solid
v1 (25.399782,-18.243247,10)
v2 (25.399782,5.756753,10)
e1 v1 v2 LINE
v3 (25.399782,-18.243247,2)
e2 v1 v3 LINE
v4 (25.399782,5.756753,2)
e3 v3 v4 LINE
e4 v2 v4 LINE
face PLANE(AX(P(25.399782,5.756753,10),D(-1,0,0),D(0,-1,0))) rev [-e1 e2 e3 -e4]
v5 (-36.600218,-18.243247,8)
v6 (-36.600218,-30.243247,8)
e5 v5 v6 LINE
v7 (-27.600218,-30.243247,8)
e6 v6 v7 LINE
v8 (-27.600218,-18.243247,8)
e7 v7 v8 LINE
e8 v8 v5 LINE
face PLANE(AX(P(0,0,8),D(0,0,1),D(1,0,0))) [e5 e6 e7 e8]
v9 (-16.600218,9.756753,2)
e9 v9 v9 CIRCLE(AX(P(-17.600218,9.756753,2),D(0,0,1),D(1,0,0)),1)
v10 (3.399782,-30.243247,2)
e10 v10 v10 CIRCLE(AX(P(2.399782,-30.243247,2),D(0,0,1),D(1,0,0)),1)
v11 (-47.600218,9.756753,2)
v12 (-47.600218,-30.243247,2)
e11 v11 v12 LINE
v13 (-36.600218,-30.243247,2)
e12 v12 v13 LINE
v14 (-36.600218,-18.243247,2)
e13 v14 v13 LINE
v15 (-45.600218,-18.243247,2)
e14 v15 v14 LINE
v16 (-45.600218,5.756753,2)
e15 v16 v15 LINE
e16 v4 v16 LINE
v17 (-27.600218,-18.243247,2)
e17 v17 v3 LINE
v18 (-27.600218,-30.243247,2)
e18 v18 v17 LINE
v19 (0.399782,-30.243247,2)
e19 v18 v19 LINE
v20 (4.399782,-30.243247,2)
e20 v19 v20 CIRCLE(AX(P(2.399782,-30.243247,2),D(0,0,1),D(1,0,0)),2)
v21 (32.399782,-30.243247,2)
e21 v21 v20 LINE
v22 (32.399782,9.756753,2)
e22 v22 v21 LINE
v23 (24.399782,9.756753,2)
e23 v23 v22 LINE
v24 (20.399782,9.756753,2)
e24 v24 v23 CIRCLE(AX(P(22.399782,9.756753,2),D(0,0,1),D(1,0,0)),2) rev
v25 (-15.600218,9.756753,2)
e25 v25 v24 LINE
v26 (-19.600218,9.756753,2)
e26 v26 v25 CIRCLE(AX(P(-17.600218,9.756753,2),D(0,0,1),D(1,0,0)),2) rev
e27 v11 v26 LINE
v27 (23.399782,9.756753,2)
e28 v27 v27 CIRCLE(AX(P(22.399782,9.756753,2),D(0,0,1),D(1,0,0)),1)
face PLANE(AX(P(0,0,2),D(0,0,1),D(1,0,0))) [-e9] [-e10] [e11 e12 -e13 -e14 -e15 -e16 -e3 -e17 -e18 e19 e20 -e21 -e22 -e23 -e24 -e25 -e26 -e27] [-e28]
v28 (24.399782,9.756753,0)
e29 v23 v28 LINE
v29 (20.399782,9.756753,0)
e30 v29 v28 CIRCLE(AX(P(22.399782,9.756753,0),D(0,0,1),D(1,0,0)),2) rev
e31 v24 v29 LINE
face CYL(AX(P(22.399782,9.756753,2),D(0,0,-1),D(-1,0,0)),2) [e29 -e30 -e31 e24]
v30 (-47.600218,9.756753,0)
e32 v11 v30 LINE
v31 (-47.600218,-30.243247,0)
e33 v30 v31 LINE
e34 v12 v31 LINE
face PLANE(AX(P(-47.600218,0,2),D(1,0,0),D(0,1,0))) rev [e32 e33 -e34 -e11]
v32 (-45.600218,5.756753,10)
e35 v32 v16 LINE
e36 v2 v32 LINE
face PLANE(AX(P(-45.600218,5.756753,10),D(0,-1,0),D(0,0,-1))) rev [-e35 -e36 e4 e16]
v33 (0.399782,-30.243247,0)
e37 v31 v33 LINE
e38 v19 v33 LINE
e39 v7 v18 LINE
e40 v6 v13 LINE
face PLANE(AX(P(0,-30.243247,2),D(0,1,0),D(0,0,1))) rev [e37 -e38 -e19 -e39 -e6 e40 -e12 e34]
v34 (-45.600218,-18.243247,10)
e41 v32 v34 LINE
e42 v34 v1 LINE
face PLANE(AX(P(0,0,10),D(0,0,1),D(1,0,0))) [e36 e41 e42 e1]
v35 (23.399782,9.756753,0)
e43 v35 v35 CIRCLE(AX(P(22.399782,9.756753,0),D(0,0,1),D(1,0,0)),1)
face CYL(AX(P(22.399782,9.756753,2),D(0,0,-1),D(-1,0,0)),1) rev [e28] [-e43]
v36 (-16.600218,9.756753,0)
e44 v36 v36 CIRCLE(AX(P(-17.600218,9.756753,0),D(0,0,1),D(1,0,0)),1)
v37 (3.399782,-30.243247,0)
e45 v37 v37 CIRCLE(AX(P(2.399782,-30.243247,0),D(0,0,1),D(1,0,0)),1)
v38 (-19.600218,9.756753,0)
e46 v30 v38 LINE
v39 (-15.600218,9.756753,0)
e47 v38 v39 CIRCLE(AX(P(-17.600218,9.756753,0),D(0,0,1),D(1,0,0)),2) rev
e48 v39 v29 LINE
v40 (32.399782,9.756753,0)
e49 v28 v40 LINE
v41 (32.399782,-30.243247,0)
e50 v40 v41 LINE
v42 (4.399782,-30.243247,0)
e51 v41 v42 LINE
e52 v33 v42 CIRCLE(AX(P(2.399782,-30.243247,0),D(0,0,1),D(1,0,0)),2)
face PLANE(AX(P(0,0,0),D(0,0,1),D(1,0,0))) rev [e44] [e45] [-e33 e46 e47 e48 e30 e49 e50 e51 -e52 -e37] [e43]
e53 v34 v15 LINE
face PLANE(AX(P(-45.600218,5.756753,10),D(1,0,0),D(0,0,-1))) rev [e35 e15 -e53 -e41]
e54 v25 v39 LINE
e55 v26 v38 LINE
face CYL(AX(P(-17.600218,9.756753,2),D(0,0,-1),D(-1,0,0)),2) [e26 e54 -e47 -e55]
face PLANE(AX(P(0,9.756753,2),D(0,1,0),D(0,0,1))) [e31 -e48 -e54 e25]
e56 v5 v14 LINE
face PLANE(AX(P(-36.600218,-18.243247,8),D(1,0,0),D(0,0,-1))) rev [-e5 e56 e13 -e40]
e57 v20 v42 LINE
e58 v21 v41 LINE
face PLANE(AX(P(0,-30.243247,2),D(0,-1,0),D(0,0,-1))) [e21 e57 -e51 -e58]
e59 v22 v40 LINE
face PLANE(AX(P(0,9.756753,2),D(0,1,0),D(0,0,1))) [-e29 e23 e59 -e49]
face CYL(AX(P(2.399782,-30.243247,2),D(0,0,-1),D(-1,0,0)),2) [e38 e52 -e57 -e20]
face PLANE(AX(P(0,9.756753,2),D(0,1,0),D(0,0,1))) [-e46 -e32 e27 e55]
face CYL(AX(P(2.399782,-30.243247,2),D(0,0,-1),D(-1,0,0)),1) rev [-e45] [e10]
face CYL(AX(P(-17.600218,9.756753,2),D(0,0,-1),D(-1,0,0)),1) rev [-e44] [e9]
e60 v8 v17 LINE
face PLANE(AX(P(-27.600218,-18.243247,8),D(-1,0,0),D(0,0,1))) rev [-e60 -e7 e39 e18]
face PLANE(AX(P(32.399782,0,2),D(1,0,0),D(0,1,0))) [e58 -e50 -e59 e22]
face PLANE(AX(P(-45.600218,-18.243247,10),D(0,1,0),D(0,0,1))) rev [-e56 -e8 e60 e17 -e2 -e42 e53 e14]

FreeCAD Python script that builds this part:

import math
import FreeCAD as App
import Part
import Sketcher

V = App.Vector


def add_polygon(sketch, points):
    """Adds a closed chain of lines whose ends are joined by coincident constraints."""
    first, n = sketch.GeometryCount, len(points)
    for a, b in zip(points, points[1:] + points[:1]):
        sketch.addGeometry(Part.LineSegment(App.Vector(*a, 0), App.Vector(*b, 0)), False)
    for i in range(n):
        sketch.addConstraint(Sketcher.Constraint("Coincident", first + i, 2, first + (i + 1) % n, 1))

doc = App.newDocument("Part")
params = doc.addObject("Spreadsheet::Sheet", "Params")
for row, (alias, value) in enumerate([
    ("sketch1_diameter", "2 mm"),
    ("sketch1_radius", "2 mm"),
    ("sketch1_width", "48 mm"),
    ("sketch1_width2", "28 mm"),
    ("sketch1_width3", "8 mm"),
    ("pad1_length", "2 mm"),
    ("sketch2_width", "71 mm"),
    ("sketch2_height", "24 mm"),
    ("pad2_length", "8 mm"),
    ("sketch3_width", "9 mm"),
    ("sketch3_height", "12 mm"),
    ("pad3_length", "6 mm"),
], start=1):
    params.set(f"A{row}", alias)
    params.set(f"B{row}", "=" + value)
    params.setAlias(f"B{row}", alias)

body = doc.addObject("PartDesign::Body", "Body")

# Sketch on XY plane
sketch1 = body.newObject("Sketcher::SketchObject", "Sketch")
sketch1.AttachmentSupport = (doc.getObject("XY_Plane"), [""])
sketch1.MapMode = "FlatFace"
sketch1.addGeometry([
    Part.LineSegment(V(-47.600218, -30.243247, 0), V(0.399782, -30.243247, 0)),  # 0
    Part.ArcOfCircle(Part.Circle(V(2.399782, -30.243247, 0), V(0, 0, 1), 2), math.radians(180), math.radians(360)),  # 1
    Part.LineSegment(V(4.399782, -30.243247, 0), V(32.399782, -30.243247, 0)),  # 2
    Part.LineSegment(V(32.399782, -30.243247, 0), V(32.399782, 9.756753, 0)),  # 3
    Part.LineSegment(V(32.399782, 9.756753, 0), V(24.399782, 9.756753, 0)),  # 4
    Part.ArcOfCircle(Part.Circle(V(22.399782, 9.756753, 0), V(0, 0, 1), 2), math.radians(0), math.radians(180)),  # 5
    Part.LineSegment(V(20.399782, 9.756753, 0), V(-15.600218, 9.756753, 0)),  # 6
    Part.ArcOfCircle(Part.Circle(V(-17.600218, 9.756753, 0), V(0, 0, 1), 2), math.radians(0), math.radians(180)),  # 7
    Part.LineSegment(V(-19.600218, 9.756753, 0), V(-47.600218, 9.756753, 0)),  # 8
    Part.LineSegment(V(-47.600218, 9.756753, 0), V(-47.600218, -30.243247, 0)),  # 9
    Part.Circle(V(2.399782, -30.243247, 0), V(0, 0, 1), 1),  # 10
    Part.Circle(V(-17.600218, 9.756753, 0), V(0, 0, 1), 1),  # 11
    Part.Circle(V(22.399782, 9.756753, 0), V(0, 0, 1), 1),  # 12
], False)
sketch1.addConstraint([
    Sketcher.Constraint("Coincident", 0, 2, 1, 1),
    Sketcher.Constraint("Coincident", 1, 2, 2, 1),
    Sketcher.Constraint("Coincident", 2, 2, 3, 1),
    Sketcher.Constraint("Coincident", 3, 2, 4, 1),
    Sketcher.Constraint("Coincident", 4, 2, 5, 1),
    Sketcher.Constraint("Coincident", 5, 2, 6, 1),
    Sketcher.Constraint("Coincident", 6, 2, 7, 1),
    Sketcher.Constraint("Coincident", 7, 2, 8, 1),
    Sketcher.Constraint("Coincident", 8, 2, 9, 1),
    Sketcher.Constraint("Coincident", 9, 2, 0, 1),
    Sketcher.Constraint("Horizontal", 0),
    Sketcher.Constraint("Horizontal", 2),
    Sketcher.Constraint("Vertical", 3),
    Sketcher.Constraint("Horizontal", 4),
    Sketcher.Constraint("Horizontal", 6),
    Sketcher.Constraint("Horizontal", 8),
    Sketcher.Constraint("Vertical", 9),
    Sketcher.Constraint("Coincident", 10, 3, 1, 3),
    Sketcher.Constraint("Coincident", 11, 3, 7, 3),
    Sketcher.Constraint("Coincident", 12, 3, 5, 3),
    Sketcher.Constraint("Equal", 1, 5),
    Sketcher.Constraint("Equal", 5, 7),
    Sketcher.Constraint("Equal", 10, 11),
    Sketcher.Constraint("Equal", 11, 12),
    Sketcher.Constraint("Horizontal", 5, 3, 7, 3),
    Sketcher.Constraint("Horizontal", 10, 3, 0, 2),
    Sketcher.Constraint("Horizontal", 0, 2, 1, 2),
    Sketcher.Constraint("Horizontal", 12, 3, 3, 2),
    Sketcher.Constraint("Horizontal", 4, 2, 5, 2),
    Sketcher.Constraint("Horizontal", 6, 2, 7, 2),
    Sketcher.Constraint("Equal", 2, 8),
    Sketcher.Constraint("Diameter", 10, 2.0),
    Sketcher.Constraint("Radius", 1, 2.0),
    Sketcher.Constraint("DistanceX", 0, 1, 0, 2, 48.0),
    Sketcher.Constraint("DistanceX", 2, 1, 2, 2, 28.0),
    Sketcher.Constraint("DistanceX", 4, 2, 4, 1, 8.0),
    Sketcher.Constraint("DistanceY", 3, 1, 3, 2, 40.0),
    Sketcher.Constraint("DistanceX", -1, 1, 1, 3, 2.399782),
    Sketcher.Constraint("DistanceY", 1, 3, -1, 1, 30.243247),
])
sketch1.setExpression("Constraints[31]", "Params.sketch1_diameter")
sketch1.setExpression("Constraints[32]", "Params.sketch1_radius")
sketch1.setExpression("Constraints[33]", "Params.sketch1_width")
sketch1.setExpression("Constraints[34]", "Params.sketch1_width2")
sketch1.setExpression("Constraints[35]", "Params.sketch1_width3")
pad1 = body.newObject("PartDesign::Pad", "Pad")
pad1.Profile = sketch1
pad1.setExpression("Length", "Params.pad1_length")

# Sketch on XY plane
sketch2 = body.newObject("Sketcher::SketchObject", "Sketch001")
sketch2.AttachmentSupport = (doc.getObject("XY_Plane"), [""])
sketch2.MapMode = "FlatFace"
sketch2.AttachmentOffset = App.Placement(V(0, 0, 2), App.Rotation())
add_polygon(sketch2, [(-45.600218, 5.756753), (-45.600218, -18.243247), (25.399782, -18.243247), (25.399782, 5.756753)])  # lines 0-3
sketch2.addConstraint([
    Sketcher.Constraint("Vertical", 0),
    Sketcher.Constraint("Horizontal", 1),
    Sketcher.Constraint("Vertical", 2),
    Sketcher.Constraint("Horizontal", 3),
    Sketcher.Constraint("DistanceX", 1, 1, 1, 2, 71.0),
    Sketcher.Constraint("DistanceY", 0, 2, 0, 1, 24.0),
    Sketcher.Constraint("DistanceX", 0, 2, -1, 1, 45.600218),
    Sketcher.Constraint("DistanceY", 0, 2, -1, 1, 18.243247),
])
sketch2.setExpression("Constraints[8]", "Params.sketch2_width")
sketch2.setExpression("Constraints[9]", "Params.sketch2_height")
pad2 = body.newObject("PartDesign::Pad", "Pad001")
pad2.Profile = sketch2
pad2.setExpression("Length", "Params.pad2_length")

# Sketch on XY plane
sketch3 = body.newObject("Sketcher::SketchObject", "Sketch002")
sketch3.AttachmentSupport = (doc.getObject("XY_Plane"), [""])
sketch3.MapMode = "FlatFace"
sketch3.AttachmentOffset = App.Placement(V(0, 0, 2), App.Rotation())
add_polygon(sketch3, [(-36.600218, -18.243247), (-36.600218, -30.243247), (-27.600218, -30.243247), (-27.600218, -18.243247)])  # lines 0-3
sketch3.addConstraint([
    Sketcher.Constraint("Vertical", 0),
    Sketcher.Constraint("Horizontal", 1),
    Sketcher.Constraint("Vertical", 2),
    Sketcher.Constraint("Horizontal", 3),
    Sketcher.Constraint("DistanceX", 1, 1, 1, 2, 9.0),
    Sketcher.Constraint("DistanceY", 0, 2, 0, 1, 12.0),
    Sketcher.Constraint("DistanceX", 0, 2, -1, 1, 36.600218),
    Sketcher.Constraint("DistanceY", 0, 2, -1, 1, 30.243247),
])
sketch3.setExpression("Constraints[8]", "Params.sketch3_width")
sketch3.setExpression("Constraints[9]", "Params.sketch3_height")
pad3 = body.newObject("PartDesign::Pad", "Pad002")
pad3.Profile = sketch3
pad3.setExpression("Length", "Params.pad3_length")

doc.recompute()
